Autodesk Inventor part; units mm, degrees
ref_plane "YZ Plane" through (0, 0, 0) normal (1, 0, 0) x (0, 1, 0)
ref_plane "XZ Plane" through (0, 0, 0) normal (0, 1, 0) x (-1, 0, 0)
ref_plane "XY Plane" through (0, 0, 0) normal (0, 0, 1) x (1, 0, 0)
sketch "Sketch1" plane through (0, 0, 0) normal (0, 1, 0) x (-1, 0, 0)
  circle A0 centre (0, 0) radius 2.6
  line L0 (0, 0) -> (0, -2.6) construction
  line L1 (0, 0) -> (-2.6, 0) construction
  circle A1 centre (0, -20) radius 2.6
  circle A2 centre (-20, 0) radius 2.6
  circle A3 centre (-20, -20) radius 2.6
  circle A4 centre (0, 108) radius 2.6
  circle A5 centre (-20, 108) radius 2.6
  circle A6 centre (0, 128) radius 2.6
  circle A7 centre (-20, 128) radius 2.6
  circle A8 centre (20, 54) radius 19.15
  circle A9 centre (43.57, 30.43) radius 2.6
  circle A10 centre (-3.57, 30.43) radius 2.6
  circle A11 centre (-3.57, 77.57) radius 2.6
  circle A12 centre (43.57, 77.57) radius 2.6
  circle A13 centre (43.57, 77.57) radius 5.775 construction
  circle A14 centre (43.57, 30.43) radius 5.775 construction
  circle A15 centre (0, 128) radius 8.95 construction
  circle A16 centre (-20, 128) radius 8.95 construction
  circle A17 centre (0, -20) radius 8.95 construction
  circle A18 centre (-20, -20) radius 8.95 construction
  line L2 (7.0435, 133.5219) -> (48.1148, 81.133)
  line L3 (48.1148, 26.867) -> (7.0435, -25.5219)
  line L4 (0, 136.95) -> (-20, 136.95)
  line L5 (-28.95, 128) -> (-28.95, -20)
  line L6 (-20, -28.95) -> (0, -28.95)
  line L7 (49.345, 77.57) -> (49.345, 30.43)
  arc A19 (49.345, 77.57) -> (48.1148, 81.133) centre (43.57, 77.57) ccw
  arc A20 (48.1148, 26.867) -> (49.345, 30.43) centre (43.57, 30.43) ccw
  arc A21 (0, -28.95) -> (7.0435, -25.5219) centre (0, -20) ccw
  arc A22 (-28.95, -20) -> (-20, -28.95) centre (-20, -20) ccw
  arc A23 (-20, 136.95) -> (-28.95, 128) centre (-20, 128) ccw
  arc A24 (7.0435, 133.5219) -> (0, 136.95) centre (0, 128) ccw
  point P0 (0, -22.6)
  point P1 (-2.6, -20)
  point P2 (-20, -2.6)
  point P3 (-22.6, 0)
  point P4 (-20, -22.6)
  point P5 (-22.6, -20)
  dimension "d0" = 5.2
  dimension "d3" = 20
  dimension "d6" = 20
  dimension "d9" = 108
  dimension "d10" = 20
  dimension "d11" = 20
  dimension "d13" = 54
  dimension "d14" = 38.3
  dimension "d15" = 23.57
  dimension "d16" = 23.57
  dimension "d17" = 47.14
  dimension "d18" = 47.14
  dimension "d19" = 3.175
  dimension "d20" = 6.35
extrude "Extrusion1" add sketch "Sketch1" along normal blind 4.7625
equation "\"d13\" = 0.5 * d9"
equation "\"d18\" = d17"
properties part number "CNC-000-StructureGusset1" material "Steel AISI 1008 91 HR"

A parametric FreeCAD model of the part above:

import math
import FreeCAD as App
import Part
import Sketcher
from FreeCAD import Vector

doc = App.newDocument("Part")
params = doc.addObject("Spreadsheet::Sheet", "Params")
for row, (alias, value) in enumerate([
    ("sketch1_diameter", "5.2 mm"),
    ("sketch1_diameter2", "38.3 mm"),
    ("sketch1_width", "20 mm"),
    ("sketch1_height", "47.14 mm"),
    ("sketch1_radius", "8.95 mm"),
    ("pad1_length", "4.7625 mm"),
], start=1):
    params.set(f"A{row}", alias)
    params.set(f"B{row}", "=" + value)
    params.setAlias(f"B{row}", alias)

body = doc.addObject("PartDesign::Body", "Body")

sketch1 = doc.addObject("Sketcher::SketchObject", "Sketch")
body.addObject(sketch1)
sketch1.AttachmentSupport = (doc.XZ_Plane, [""])
sketch1.MapMode = "FlatFace"
sketch1.addGeometry(Part.LineSegment(Vector(-48.1, 81.1, 0), Vector(-7, 133.5, 0)), False)
sketch1.addGeometry(Part.ArcOfCircle(Part.Circle(Vector(0, 128, 0), Vector(0, 0, 1), 8.9), math.radians(90), math.radians(142)), False)
sketch1.addGeometry(Part.LineSegment(Vector(0, 136.9, 0), Vector(20, 136.9, 0)), False)
sketch1.addGeometry(Part.ArcOfCircle(Part.Circle(Vector(20, 128, 0), Vector(0, 0, 1), 8.9), math.radians(0), math.radians(90)), False)
sketch1.addGeometry(Part.LineSegment(Vector(28.9, 128, 0), Vector(28.9, -20, 0)), False)
sketch1.addGeometry(Part.ArcOfCircle(Part.Circle(Vector(20, -20, 0), Vector(0, 0, 1), 8.9), math.radians(-90), math.radians(0)), False)
sketch1.addGeometry(Part.LineSegment(Vector(20, -28.9, 0), Vector(0, -28.9, 0)), False)
sketch1.addGeometry(Part.ArcOfCircle(Part.Circle(Vector(0, -20, 0), Vector(0, 0, 1), 8.9), math.radians(-142), math.radians(-90)), False)
sketch1.addGeometry(Part.LineSegment(Vector(-7, -25.5, 0), Vector(-48.1, 26.9, 0)), False)
sketch1.addGeometry(Part.ArcOfCircle(Part.Circle(Vector(-43.6, 30.4, 0), Vector(0, 0, 1), 5.8), math.radians(180), math.radians(218)), False)
sketch1.addGeometry(Part.LineSegment(Vector(-49.3, 30.4, 0), Vector(-49.3, 77.6, 0)), False)
sketch1.addGeometry(Part.ArcOfCircle(Part.Circle(Vector(-43.6, 77.6, 0), Vector(0, 0, 1), 5.8), math.radians(142), math.radians(180)), False)
sketch1.addGeometry(Part.Circle(Vector(20, -20, 0), Vector(0, 0, 1), 2.6), False)
sketch1.addGeometry(Part.Circle(Vector(20, 0, 0), Vector(0, 0, 1), 2.6), False)
sketch1.addGeometry(Part.Circle(Vector(0, -20, 0), Vector(0, 0, 1), 2.6), False)
sketch1.addGeometry(Part.Circle(Vector(0, 0, 0), Vector(0, 0, 1), 2.6), False)
sketch1.addGeometry(Part.Circle(Vector(3.6, 30.4, 0), Vector(0, 0, 1), 2.6), False)
sketch1.addGeometry(Part.Circle(Vector(-43.6, 30.4, 0), Vector(0, 0, 1), 2.6), False)
sketch1.addGeometry(Part.Circle(Vector(3.6, 77.6, 0), Vector(0, 0, 1), 2.6), False)
sketch1.addGeometry(Part.Circle(Vector(20, 108, 0), Vector(0, 0, 1), 2.6), False)
sketch1.addGeometry(Part.Circle(Vector(20, 128, 0), Vector(0, 0, 1), 2.6), False)
sketch1.addGeometry(Part.Circle(Vector(0, 108, 0), Vector(0, 0, 1), 2.6), False)
sketch1.addGeometry(Part.Circle(Vector(0, 128, 0), Vector(0, 0, 1), 2.6), False)
sketch1.addGeometry(Part.Circle(Vector(-20, 54, 0), Vector(0, 0, 1), 19.1), False)
sketch1.addGeometry(Part.Circle(Vector(-43.6, 77.6, 0), Vector(0, 0, 1), 2.6), False)
sketch1.addConstraint(Sketcher.Constraint("Tangent", 0, 2, 1, 2))
sketch1.addConstraint(Sketcher.Constraint("Tangent", 1, 1, 2, 1))
sketch1.addConstraint(Sketcher.Constraint("Tangent", 2, 2, 3, 2))
sketch1.addConstraint(Sketcher.Constraint("Tangent", 3, 1, 4, 1))
sketch1.addConstraint(Sketcher.Constraint("Tangent", 4, 2, 5, 2))
sketch1.addConstraint(Sketcher.Constraint("Tangent", 5, 1, 6, 1))
sketch1.addConstraint(Sketcher.Constraint("Tangent", 6, 2, 7, 2))
sketch1.addConstraint(Sketcher.Constraint("Tangent", 7, 1, 8, 1))
sketch1.addConstraint(Sketcher.Constraint("Tangent", 8, 2, 9, 2))
sketch1.addConstraint(Sketcher.Constraint("Tangent", 9, 1, 10, 1))
sketch1.addConstraint(Sketcher.Constraint("Tangent", 10, 2, 11, 2))
sketch1.addConstraint(Sketcher.Constraint("Tangent", 11, 1, 0, 1))
sketch1.addConstraint(Sketcher.Constraint("Horizontal", 2))
sketch1.addConstraint(Sketcher.Constraint("Vertical", 4))
sketch1.addConstraint(Sketcher.Constraint("Horizontal", 6))
sketch1.addConstraint(Sketcher.Constraint("Vertical", 10))
sketch1.addConstraint(Sketcher.Constraint("Coincident", 15, 3, -1, 1))
sketch1.addConstraint(Sketcher.Constraint("Coincident", 12, 3, 5, 3))
sketch1.addConstraint(Sketcher.Constraint("Coincident", 14, 3, 7, 3))
sketch1.addConstraint(Sketcher.Constraint("Coincident", 17, 3, 9, 3))
sketch1.addConstraint(Sketcher.Constraint("Coincident", 20, 3, 3, 3))
sketch1.addConstraint(Sketcher.Constraint("Coincident", 22, 3, 1, 3))
sketch1.addConstraint(Sketcher.Constraint("Coincident", 24, 3, 11, 3))
sketch1.addConstraint(Sketcher.Constraint("Equal", 1, 3))
sketch1.addConstraint(Sketcher.Constraint("Equal", 3, 5))
sketch1.addConstraint(Sketcher.Constraint("Equal", 5, 7))
sketch1.addConstraint(Sketcher.Constraint("Equal", 9, 11))
sketch1.addConstraint(Sketcher.Constraint("Equal", 12, 13))
sketch1.addConstraint(Sketcher.Constraint("Equal", 13, 14))
sketch1.addConstraint(Sketcher.Constraint("Equal", 14, 15))
sketch1.addConstraint(Sketcher.Constraint("Equal", 15, 16))
sketch1.addConstraint(Sketcher.Constraint("Equal", 16, 17))
sketch1.addConstraint(Sketcher.Constraint("Equal", 17, 18))
sketch1.addConstraint(Sketcher.Constraint("Equal", 18, 19))
sketch1.addConstraint(Sketcher.Constraint("Equal", 19, 20))
sketch1.addConstraint(Sketcher.Constraint("Equal", 20, 21))
sketch1.addConstraint(Sketcher.Constraint("Equal", 21, 22))
sketch1.addConstraint(Sketcher.Constraint("Equal", 22, 24))
sketch1.addConstraint(Sketcher.Constraint("PointOnObject", 1, 3, -2))
sketch1.addConstraint(Sketcher.Constraint("PointOnObject", 7, 3, -2))
sketch1.addConstraint(Sketcher.Constraint("PointOnObject", 13, 3, -1))
sketch1.addConstraint(Sketcher.Constraint("PointOnObject", 21, 3, -2))
sketch1.addConstraint(Sketcher.Constraint("Horizontal", 9, 3, 16, 3))
sketch1.addConstraint(Sketcher.Constraint("Horizontal", 11, 3, 18, 3))
sketch1.addConstraint(Sketcher.Constraint("Horizontal", 19, 3, 21, 3))
sketch1.addConstraint(Sketcher.Constraint("Vertical", 12, 3, 13, 3))
sketch1.addConstraint(Sketcher.Constraint("Vertical", 16, 3, 18, 3))
sketch1.addConstraint(Sketcher.Constraint("Vertical", 13, 3, 19, 3))
sketch1.addConstraint(Sketcher.Constraint("Vertical", 0, 2, 7, 1))
sketch1.addConstraint(Sketcher.Constraint("Diameter", 12, 5.2))
sketch1.addConstraint(Sketcher.Constraint("Diameter", 23, 38.3))
sketch1.addConstraint(Sketcher.Constraint("DistanceX", 2, 1, 2, 2, 20.0))
sketch1.addConstraint(Sketcher.Constraint("DistanceY", 5, 3, -1, 1, 20.0))
sketch1.addConstraint(Sketcher.Constraint("DistanceY", -1, 1, 19, 3, 108.0))
sketch1.addConstraint(Sketcher.Constraint("DistanceX", 23, 3, -1, 1, 20.0))
sketch1.addConstraint(Sketcher.Constraint("DistanceY", -1, 1, 23, 3, 54.0))
sketch1.addConstraint(Sketcher.Constraint("DistanceY", 19, 3, 3, 3, 20.0))
sketch1.addConstraint(Sketcher.Constraint("DistanceY", 10, 1, 10, 2, 47.14))
sketch1.addConstraint(Sketcher.Constraint("Radius", 1, 8.95))
sketch1.addConstraint(Sketcher.Constraint("DistanceX", 9, 3, 16, 3, 47.14))
sketch1.addConstraint(Sketcher.Constraint("DistanceX", 9, 3, 23, 3, 23.57))
sketch1.addConstraint(Sketcher.Constraint("Radius", 9, 5.775))
sketch1.setExpression("Constraints[49]", "Params.sketch1_diameter")
sketch1.setExpression("Constraints[50]", "Params.sketch1_diameter2")
sketch1.setExpression("Constraints[51]", "Params.sketch1_width")
sketch1.setExpression("Constraints[57]", "Params.sketch1_height")
sketch1.setExpression("Constraints[58]", "Params.sketch1_radius")
pad1 = doc.addObject("PartDesign::Pad", "Pad")
body.addObject(pad1)
pad1.Profile = sketch1
pad1.setExpression("Length", "Params.pad1_length")
pad1.Reversed = True

doc.recompute()
